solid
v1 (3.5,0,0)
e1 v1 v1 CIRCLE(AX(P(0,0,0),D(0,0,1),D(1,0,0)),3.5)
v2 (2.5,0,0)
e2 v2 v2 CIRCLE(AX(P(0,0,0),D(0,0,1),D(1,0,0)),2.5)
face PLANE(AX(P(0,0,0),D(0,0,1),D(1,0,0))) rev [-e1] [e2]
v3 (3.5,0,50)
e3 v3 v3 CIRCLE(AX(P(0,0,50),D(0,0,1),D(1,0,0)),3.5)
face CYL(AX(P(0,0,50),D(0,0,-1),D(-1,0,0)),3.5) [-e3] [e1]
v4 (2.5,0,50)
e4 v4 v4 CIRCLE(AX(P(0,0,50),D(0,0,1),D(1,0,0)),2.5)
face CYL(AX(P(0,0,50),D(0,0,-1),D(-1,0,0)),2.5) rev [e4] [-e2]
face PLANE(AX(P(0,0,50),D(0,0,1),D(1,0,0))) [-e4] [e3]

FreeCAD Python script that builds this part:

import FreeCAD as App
import Part
import Sketcher

V = App.Vector
Q = App.Units.Quantity

doc = App.newDocument("Part")
body = doc.addObject("PartDesign::Body", "Body")

sketch1 = body.newObject("Sketcher::SketchObject", "Sketch")
sketch1.AttachmentSupport = (doc.getObject("XY_Plane"), [""])
sketch1.MapMode = "FlatFace"
sketch1.addGeometry([
    Part.Circle(V(0, 0, 0), V(0, 0, 1), 3.5),
    Part.Circle(V(0, 0, 0), V(0, 0, 1), 2.5),
], False)
sketch1.addConstraint([
    Sketcher.Constraint("Coincident", 0, 3, -1, 1),
    Sketcher.Constraint("Coincident", 1, 3, -1, 1),
    Sketcher.Constraint("Diameter", 0, Q("7 mm")),
    Sketcher.Constraint("Diameter", 1, Q("5 mm")),
])
pad1 = body.newObject("PartDesign::Pad", "Pad")
pad1.Profile = sketch1
pad1.Length = 50

doc.recompute()
